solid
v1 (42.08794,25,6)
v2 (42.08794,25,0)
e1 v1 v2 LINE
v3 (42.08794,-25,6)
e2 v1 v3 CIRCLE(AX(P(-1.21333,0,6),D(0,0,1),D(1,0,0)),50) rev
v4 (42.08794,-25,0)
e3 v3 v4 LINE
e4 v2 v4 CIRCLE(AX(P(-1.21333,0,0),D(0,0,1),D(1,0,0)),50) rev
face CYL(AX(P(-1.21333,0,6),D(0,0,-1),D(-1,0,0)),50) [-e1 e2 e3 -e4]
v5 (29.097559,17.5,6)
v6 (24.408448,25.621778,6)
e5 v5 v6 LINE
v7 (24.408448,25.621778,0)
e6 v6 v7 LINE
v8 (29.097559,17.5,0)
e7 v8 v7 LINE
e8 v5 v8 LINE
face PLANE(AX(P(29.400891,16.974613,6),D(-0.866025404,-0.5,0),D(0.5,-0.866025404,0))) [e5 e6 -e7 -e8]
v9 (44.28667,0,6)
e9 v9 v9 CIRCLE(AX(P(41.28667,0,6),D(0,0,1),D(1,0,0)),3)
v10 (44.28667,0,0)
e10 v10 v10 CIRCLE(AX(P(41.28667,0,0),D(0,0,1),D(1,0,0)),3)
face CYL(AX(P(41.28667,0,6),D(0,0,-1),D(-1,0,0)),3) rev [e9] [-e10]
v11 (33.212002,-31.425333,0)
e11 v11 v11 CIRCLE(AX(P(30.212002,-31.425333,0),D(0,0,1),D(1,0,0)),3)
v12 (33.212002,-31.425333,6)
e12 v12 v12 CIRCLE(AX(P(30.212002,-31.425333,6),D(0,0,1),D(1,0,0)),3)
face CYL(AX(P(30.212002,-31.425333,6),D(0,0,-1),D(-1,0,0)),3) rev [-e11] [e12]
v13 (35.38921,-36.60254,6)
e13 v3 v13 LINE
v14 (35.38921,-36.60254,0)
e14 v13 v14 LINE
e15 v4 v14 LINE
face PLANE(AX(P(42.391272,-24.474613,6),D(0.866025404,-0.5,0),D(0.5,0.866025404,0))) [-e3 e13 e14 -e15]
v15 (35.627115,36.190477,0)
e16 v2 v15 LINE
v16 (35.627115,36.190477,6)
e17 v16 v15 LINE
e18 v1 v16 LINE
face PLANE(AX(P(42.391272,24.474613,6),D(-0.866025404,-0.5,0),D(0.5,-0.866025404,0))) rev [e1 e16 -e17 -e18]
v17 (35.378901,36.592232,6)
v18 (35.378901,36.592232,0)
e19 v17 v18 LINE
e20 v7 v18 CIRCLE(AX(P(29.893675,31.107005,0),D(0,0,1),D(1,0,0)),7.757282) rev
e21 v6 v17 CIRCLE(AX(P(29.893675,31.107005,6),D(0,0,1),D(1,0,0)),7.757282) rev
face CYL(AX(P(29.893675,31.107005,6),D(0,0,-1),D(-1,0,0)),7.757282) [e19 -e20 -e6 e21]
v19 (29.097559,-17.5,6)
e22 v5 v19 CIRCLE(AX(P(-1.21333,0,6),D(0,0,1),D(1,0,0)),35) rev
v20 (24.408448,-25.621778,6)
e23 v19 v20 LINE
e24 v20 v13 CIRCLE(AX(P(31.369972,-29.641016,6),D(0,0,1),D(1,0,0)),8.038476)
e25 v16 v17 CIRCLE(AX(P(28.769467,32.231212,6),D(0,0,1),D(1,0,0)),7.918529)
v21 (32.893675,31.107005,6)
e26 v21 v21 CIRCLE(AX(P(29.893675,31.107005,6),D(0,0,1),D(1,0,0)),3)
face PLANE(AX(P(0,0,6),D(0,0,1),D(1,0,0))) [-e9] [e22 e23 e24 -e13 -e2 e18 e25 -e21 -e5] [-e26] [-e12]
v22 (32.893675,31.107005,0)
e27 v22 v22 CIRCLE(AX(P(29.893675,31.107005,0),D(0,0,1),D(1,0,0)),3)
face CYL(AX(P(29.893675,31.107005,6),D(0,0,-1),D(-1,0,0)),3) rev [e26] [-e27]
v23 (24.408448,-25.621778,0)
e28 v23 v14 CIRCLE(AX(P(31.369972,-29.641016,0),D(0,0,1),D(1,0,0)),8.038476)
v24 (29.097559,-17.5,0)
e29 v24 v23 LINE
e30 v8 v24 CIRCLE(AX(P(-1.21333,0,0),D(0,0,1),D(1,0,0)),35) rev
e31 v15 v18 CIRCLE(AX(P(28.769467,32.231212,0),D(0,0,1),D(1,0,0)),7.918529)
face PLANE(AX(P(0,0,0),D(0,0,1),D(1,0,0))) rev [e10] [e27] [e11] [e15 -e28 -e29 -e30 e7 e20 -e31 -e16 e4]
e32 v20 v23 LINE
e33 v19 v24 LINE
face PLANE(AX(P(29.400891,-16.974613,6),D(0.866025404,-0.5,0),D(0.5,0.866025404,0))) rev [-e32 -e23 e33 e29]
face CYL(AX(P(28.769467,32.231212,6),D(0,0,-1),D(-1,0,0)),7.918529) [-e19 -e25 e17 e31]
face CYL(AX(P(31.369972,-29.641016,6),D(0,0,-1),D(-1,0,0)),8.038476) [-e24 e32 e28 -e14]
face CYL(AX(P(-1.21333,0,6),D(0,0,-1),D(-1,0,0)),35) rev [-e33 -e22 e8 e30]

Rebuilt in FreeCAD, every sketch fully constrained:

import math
import FreeCAD as App
import Part
import Sketcher
from FreeCAD import Vector
Q = App.Units.Quantity

doc = App.newDocument("Part")
body = doc.addObject("PartDesign::Body", "Body")

sketch1 = body.newObject("Sketcher::SketchObject", "Sketch")
sketch1.AttachmentSupport = (doc.getObject("XY_Plane"), [""])
sketch1.MapMode = "FlatFace"
sketch1.addGeometry(Part.LineSegment(Vector(24.408448, 25.621778, 0), Vector(29.097559, 17.5, 0)), False)
sketch1.addGeometry(Part.ArcOfCircle(Part.Circle(Vector(-1.21333, 0, 0), Vector(0, 0, 1), 35), math.radians(-30), math.radians(30)), False)
sketch1.addGeometry(Part.LineSegment(Vector(29.097559, -17.5, 0), Vector(24.408448, -25.621778, 0)), False)
sketch1.addGeometry(Part.ArcOfCircle(Part.Circle(Vector(31.369972, -29.641016, 0), Vector(0, 0, 1), 8.038476), math.radians(150), math.radians(300)), False)
sketch1.addGeometry(Part.LineSegment(Vector(35.38921, -36.60254, 0), Vector(42.08794, -25, 0)), False)
sketch1.addGeometry(Part.ArcOfCircle(Part.Circle(Vector(-1.21333, 0, 0), Vector(0, 0, 1), 50), math.radians(-30), math.radians(30)), False)
sketch1.addGeometry(Part.LineSegment(Vector(42.08794, 25, 0), Vector(35.627115, 36.190477, 0)), False)
sketch1.addGeometry(Part.ArcOfCircle(Part.Circle(Vector(28.769467, 32.231212, 0), Vector(0, 0, 1), 7.91853), math.radians(30), math.radians(33.417522)), False)
sketch1.addGeometry(Part.ArcOfCircle(Part.Circle(Vector(29.893675, 31.107005, 0), Vector(0, 0, 1), 7.757282), math.radians(45), math.radians(225)), False)
sketch1.addGeometry(Part.Circle(Vector(30.212002, -31.425333, 0), Vector(0, 0, 1), 3), False)
sketch1.addGeometry(Part.Circle(Vector(41.28667, 0, 0), Vector(0, 0, 1), 3), False)
sketch1.addGeometry(Part.Circle(Vector(29.893675, 31.107005, 0), Vector(0, 0, 1), 3), False)
sketch1.addConstraint(Sketcher.Constraint("Tangent", 0, 2, 1, 2))
sketch1.addConstraint(Sketcher.Constraint("Tangent", 1, 1, 2, 1))
sketch1.addConstraint(Sketcher.Constraint("Tangent", 2, 2, 3, 1))
sketch1.addConstraint(Sketcher.Constraint("Coincident", 3, 2, 4, 1))
sketch1.addConstraint(Sketcher.Constraint("Tangent", 4, 2, 5, 1))
sketch1.addConstraint(Sketcher.Constraint("Tangent", 5, 2, 6, 1))
sketch1.addConstraint(Sketcher.Constraint("Tangent", 6, 2, 7, 1))
sketch1.addConstraint(Sketcher.Constraint("Coincident", 7, 2, 8, 1))
sketch1.addConstraint(Sketcher.Constraint("Coincident", 8, 2, 0, 1))
sketch1.addConstraint(Sketcher.Constraint("Coincident", 5, 3, 1, 3))
sketch1.addConstraint(Sketcher.Constraint("Coincident", 11, 3, 8, 3))
sketch1.addConstraint(Sketcher.Constraint("Equal", 9, 10))
sketch1.addConstraint(Sketcher.Constraint("Equal", 10, 11))
sketch1.addConstraint(Sketcher.Constraint("Symmetric", 0, 2, 1, 1, -1))
sketch1.addConstraint(Sketcher.Constraint("PointOnObject", 10, 3, -1))
sketch1.addConstraint(Sketcher.Constraint("Parallel", 2, 4))
sketch1.addConstraint(Sketcher.Constraint("Parallel", 0, 6))
sketch1.addConstraint(Sketcher.Constraint("Vertical", 2, 2, 8, 2))
sketch1.addConstraint(Sketcher.Constraint("Diameter", 9, 6.0))
sketch1.addConstraint(Sketcher.Constraint("Radius", 1, 35.0))
sketch1.addConstraint(Sketcher.Constraint("Radius", 5, 50.0))
sketch1.addConstraint(Sketcher.Constraint("Angle", 0, Q("-60 deg")))
sketch1.addConstraint(Sketcher.Constraint("DistanceX", 1, 3, 10, 3, 42.5))
sketch1.addConstraint(Sketcher.Constraint("Radius", 7, 7.91853))
sketch1.addConstraint(Sketcher.Constraint("Radius", 8, 7.757282))
sketch1.addConstraint(Sketcher.Constraint("Radius", 3, 8.038476))
sketch1.addConstraint(Sketcher.Constraint("DistanceX", -1, 1, 7, 2, 35.378901))
sketch1.addConstraint(Sketcher.Constraint("DistanceY", 8, 2, 6, 2, 10.568699))
sketch1.addConstraint(Sketcher.Constraint("Distance", 0, 9.378222))
sketch1.addConstraint(Sketcher.Constraint("DistanceY", 3, 3, 8, 3, 60.748021))
sketch1.addConstraint(Sketcher.Constraint("DistanceX", 9, 3, 3, 3, 1.15797))
sketch1.addConstraint(Sketcher.Constraint("DistanceY", 9, 3, -1, 1, 31.425333))
pad1 = body.newObject("PartDesign::Pad", "Pad")
pad1.Profile = sketch1
pad1.Length = 6

doc.recompute()
